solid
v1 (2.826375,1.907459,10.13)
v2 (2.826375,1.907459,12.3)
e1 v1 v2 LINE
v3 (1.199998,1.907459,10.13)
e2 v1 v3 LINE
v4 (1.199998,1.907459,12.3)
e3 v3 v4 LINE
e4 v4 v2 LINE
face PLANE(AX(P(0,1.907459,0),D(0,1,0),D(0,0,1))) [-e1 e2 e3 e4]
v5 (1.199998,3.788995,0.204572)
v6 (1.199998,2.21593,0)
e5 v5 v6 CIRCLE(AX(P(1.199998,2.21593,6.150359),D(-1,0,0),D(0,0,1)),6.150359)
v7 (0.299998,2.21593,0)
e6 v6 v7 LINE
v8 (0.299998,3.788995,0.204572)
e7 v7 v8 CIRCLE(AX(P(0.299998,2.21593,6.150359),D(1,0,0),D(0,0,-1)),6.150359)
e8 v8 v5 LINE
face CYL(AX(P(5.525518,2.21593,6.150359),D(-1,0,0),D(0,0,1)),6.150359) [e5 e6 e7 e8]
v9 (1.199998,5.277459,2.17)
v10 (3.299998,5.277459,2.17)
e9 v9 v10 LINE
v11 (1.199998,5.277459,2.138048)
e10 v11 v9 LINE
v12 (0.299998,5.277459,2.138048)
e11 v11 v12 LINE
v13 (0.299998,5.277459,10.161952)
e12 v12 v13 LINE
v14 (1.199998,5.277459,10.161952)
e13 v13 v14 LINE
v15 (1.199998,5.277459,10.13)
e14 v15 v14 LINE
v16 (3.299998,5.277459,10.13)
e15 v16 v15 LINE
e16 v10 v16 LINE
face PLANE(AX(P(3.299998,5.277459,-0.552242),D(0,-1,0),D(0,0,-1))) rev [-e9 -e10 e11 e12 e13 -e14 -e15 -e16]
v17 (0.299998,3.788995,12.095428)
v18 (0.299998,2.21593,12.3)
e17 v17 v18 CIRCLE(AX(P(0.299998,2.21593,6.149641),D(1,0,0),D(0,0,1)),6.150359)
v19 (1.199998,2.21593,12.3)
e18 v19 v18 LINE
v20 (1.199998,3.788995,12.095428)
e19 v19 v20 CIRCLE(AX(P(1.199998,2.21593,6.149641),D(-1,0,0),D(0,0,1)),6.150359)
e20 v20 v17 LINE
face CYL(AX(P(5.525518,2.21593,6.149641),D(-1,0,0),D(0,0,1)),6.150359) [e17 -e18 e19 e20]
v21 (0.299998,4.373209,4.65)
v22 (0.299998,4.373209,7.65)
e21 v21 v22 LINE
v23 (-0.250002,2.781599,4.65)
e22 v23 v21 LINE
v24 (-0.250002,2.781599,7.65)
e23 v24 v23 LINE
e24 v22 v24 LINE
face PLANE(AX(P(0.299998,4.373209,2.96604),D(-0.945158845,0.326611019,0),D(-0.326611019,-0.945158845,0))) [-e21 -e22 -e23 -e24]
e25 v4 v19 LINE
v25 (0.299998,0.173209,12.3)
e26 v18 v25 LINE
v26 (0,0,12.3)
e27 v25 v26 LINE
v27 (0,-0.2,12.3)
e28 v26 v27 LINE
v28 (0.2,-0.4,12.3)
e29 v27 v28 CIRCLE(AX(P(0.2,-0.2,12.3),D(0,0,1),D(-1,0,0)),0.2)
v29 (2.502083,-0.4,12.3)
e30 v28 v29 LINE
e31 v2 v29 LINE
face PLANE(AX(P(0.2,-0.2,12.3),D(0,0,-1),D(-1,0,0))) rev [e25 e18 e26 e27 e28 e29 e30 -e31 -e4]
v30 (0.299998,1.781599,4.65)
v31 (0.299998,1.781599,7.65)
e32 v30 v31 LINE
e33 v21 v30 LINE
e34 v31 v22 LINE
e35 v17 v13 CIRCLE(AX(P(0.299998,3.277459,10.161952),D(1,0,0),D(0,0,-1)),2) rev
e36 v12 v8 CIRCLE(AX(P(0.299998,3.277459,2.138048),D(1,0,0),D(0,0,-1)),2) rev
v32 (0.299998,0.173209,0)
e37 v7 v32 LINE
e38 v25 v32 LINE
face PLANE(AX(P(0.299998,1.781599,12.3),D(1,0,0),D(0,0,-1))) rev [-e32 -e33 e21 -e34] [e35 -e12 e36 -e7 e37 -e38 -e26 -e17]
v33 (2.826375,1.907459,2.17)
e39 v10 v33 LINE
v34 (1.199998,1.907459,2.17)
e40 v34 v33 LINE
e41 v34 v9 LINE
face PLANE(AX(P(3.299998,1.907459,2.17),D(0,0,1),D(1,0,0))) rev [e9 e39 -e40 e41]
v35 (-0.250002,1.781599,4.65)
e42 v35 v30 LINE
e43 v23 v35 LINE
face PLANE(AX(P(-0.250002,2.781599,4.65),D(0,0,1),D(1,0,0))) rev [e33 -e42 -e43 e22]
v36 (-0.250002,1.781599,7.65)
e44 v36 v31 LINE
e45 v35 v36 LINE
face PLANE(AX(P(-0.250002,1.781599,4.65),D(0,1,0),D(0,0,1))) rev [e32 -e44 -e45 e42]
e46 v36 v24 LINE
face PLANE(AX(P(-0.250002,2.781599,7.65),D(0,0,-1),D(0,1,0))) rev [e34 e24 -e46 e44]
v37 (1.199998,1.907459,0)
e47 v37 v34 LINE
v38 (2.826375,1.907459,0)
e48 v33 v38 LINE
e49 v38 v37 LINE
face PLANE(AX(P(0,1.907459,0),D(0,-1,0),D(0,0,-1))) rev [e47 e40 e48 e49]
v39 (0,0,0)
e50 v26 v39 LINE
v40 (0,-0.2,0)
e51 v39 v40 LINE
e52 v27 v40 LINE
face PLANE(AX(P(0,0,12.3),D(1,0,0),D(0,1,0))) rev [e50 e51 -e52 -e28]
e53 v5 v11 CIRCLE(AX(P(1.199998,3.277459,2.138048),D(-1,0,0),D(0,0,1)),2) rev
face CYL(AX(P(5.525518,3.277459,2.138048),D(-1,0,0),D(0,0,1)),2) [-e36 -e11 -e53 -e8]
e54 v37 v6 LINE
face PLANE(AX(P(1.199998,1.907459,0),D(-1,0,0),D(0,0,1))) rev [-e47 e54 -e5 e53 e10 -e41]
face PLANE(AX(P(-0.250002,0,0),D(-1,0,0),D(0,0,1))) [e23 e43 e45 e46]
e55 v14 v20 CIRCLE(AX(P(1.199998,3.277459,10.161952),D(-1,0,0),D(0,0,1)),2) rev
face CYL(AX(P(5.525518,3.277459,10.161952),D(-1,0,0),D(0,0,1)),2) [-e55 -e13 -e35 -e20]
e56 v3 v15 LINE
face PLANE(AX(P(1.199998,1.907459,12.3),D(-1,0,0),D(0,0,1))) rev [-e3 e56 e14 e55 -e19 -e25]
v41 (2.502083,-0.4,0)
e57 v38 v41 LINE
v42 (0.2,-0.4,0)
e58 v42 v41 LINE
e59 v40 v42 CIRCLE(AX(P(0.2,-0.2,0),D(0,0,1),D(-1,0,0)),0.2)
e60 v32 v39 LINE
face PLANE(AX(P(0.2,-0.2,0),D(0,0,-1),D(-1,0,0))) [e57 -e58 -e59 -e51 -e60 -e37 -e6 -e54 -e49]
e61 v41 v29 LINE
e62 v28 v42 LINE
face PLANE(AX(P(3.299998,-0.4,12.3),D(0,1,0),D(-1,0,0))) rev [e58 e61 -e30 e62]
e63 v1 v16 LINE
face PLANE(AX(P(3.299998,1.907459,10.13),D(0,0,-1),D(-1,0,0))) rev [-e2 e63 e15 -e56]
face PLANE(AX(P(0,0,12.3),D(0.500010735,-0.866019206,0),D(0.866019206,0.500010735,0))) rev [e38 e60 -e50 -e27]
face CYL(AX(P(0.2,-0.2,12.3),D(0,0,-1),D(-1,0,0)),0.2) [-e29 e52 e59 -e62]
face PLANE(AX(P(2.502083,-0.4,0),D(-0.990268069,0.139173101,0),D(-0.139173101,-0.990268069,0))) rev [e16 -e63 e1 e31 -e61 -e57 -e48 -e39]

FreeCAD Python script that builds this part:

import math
import FreeCAD as App
import Part
import Sketcher

V = App.Vector
Q = App.Units.Quantity


def edges_at(feature, points):
    """Names of the edges that pass closest to the given points."""
    edges = feature.Shape.Edges
    near = lambda p: min(range(len(edges)), key=lambda i: edges[i].distToShape(Part.Vertex(*p))[0])
    return sorted({f"Edge{near(p) + 1}" for p in points})

doc = App.newDocument("Part")
body = doc.addObject("PartDesign::Body", "Body")

# Sketch on XY plane
sketch1 = body.newObject("Sketcher::SketchObject", "Sketch")
sketch1.AttachmentSupport = (doc.getObject("XY_Plane"), [""])
sketch1.MapMode = "FlatFace"
sketch1.addGeometry(Part.LineSegment(V(0.3, 0.17, 0), V(0, 0, 0)), False)
sketch1.addGeometry(Part.LineSegment(V(0, 0, 0), V(0, -0.2, 0)), False)
sketch1.addGeometry(Part.ArcOfCircle(Part.Circle(V(0.2, -0.2, 0), V(0, 0, 1), 0.2), math.radians(-180), math.radians(-90)), False)
sketch1.addGeometry(Part.LineSegment(V(0.2, -0.4, 0), V(3.3, -0.4, 0)), False)
sketch1.addGeometry(Part.LineSegment(V(3.3, -0.4, 0), V(3.3, 6.11, 0)), False)
sketch1.addGeometry(Part.LineSegment(V(3.3, 6.11, 0), V(0.3, 6.11, 0)), False)
sketch1.addGeometry(Part.LineSegment(V(0.3, 6.11, 0), V(0.3, 0.17, 0)), False)
sketch1.addConstraint(Sketcher.Constraint("Coincident", 0, 2, 1, 1))
sketch1.addConstraint(Sketcher.Constraint("Tangent", 1, 2, 2, 1))
sketch1.addConstraint(Sketcher.Constraint("Tangent", 2, 2, 3, 1))
sketch1.addConstraint(Sketcher.Constraint("Coincident", 3, 2, 4, 1))
sketch1.addConstraint(Sketcher.Constraint("Coincident", 4, 2, 5, 1))
sketch1.addConstraint(Sketcher.Constraint("Coincident", 5, 2, 6, 1))
sketch1.addConstraint(Sketcher.Constraint("Coincident", 6, 2, 0, 1))
sketch1.addConstraint(Sketcher.Constraint("Vertical", 1))
sketch1.addConstraint(Sketcher.Constraint("Horizontal", 3))
sketch1.addConstraint(Sketcher.Constraint("Vertical", 4))
sketch1.addConstraint(Sketcher.Constraint("Horizontal", 5))
sketch1.addConstraint(Sketcher.Constraint("Vertical", 6))
sketch1.addConstraint(Sketcher.Constraint("Coincident", 0, 2, -1, 1))
sketch1.addConstraint(Sketcher.Constraint("Radius", 2, 0.2))
sketch1.addConstraint(Sketcher.Constraint("DistanceX", 5, 2, 5, 1, 3.0))
sketch1.addConstraint(Sketcher.Constraint("DistanceY", 1, 2, 1, 1, 0.2))
sketch1.addConstraint(Sketcher.Constraint("DistanceY", 4, 1, 4, 2, 6.507459))
sketch1.addConstraint(Sketcher.Constraint("DistanceY", 6, 2, 6, 1, 5.93425))
sketch1.addConstraint(Sketcher.Constraint("Distance", 0, 0.34641))
pad1 = body.newObject("PartDesign::Pad", "Pad")
pad1.Profile = sketch1
pad1.Length = 12.3

# Sketch on XZ plane
sketch2 = body.newObject("Sketcher::SketchObject", "Sketch001")
sketch2.AttachmentSupport = (doc.getObject("XZ_Plane"), [""])
sketch2.MapMode = "FlatFace"
sketch2.AttachmentOffset = App.Placement(V(0, 0, -6.107459), App.Rotation())
sketch2.addGeometry(Part.LineSegment(V(1.2, 0, 0), V(1.2, 2.2, 0)), False)
sketch2.addGeometry(Part.LineSegment(V(1.2, 2.2, 0), V(3.3, 2.2, 0)), False)
sketch2.addGeometry(Part.LineSegment(V(3.3, 2.2, 0), V(3.3, 0, 0)), False)
sketch2.addGeometry(Part.LineSegment(V(3.3, 0, 0), V(1.2, 0, 0)), False)
sketch2.addGeometry(Part.LineSegment(V(1.2, 10.1, 0), V(1.2, 12.3, 0)), False)
sketch2.addGeometry(Part.LineSegment(V(1.2, 12.3, 0), V(3.3, 12.3, 0)), False)
sketch2.addGeometry(Part.LineSegment(V(3.3, 12.3, 0), V(3.3, 10.1, 0)), False)
sketch2.addGeometry(Part.LineSegment(V(3.3, 10.1, 0), V(1.2, 10.1, 0)), False)
sketch2.addConstraint(Sketcher.Constraint("Coincident", 0, 2, 1, 1))
sketch2.addConstraint(Sketcher.Constraint("Coincident", 1, 2, 2, 1))
sketch2.addConstraint(Sketcher.Constraint("Coincident", 2, 2, 3, 1))
sketch2.addConstraint(Sketcher.Constraint("Coincident", 3, 2, 0, 1))
sketch2.addConstraint(Sketcher.Constraint("Coincident", 4, 2, 5, 1))
sketch2.addConstraint(Sketcher.Constraint("Coincident", 5, 2, 6, 1))
sketch2.addConstraint(Sketcher.Constraint("Coincident", 6, 2, 7, 1))
sketch2.addConstraint(Sketcher.Constraint("Coincident", 7, 2, 4, 1))
sketch2.addConstraint(Sketcher.Constraint("Vertical", 0))
sketch2.addConstraint(Sketcher.Constraint("Horizontal", 1))
sketch2.addConstraint(Sketcher.Constraint("Vertical", 2))
sketch2.addConstraint(Sketcher.Constraint("Horizontal", 3))
sketch2.addConstraint(Sketcher.Constraint("Vertical", 4))
sketch2.addConstraint(Sketcher.Constraint("Horizontal", 5))
sketch2.addConstraint(Sketcher.Constraint("Vertical", 6))
sketch2.addConstraint(Sketcher.Constraint("Horizontal", 7))
sketch2.addConstraint(Sketcher.Constraint("PointOnObject", 2, 2, -1))
sketch2.addConstraint(Sketcher.Constraint("Vertical", 3, 2, 4, 2))
sketch2.addConstraint(Sketcher.Constraint("Vertical", 2, 2, 5, 2))
sketch2.addConstraint(Sketcher.Constraint("Equal", 2, 4))
sketch2.addConstraint(Sketcher.Constraint("DistanceX", 1, 1, 1, 2, 2.1))
sketch2.addConstraint(Sketcher.Constraint("DistanceY", 0, 1, 0, 2, 2.17))
sketch2.addConstraint(Sketcher.Constraint("DistanceY", -1, 1, 4, 2, 12.3))
sketch2.addConstraint(Sketcher.Constraint("DistanceX", -1, 1, 0, 2, 1.199998))
pocket1 = body.newObject("PartDesign::Pocket", "Pocket")
pocket1.Profile = sketch2
pocket1.Length = 4.2
pocket1.Reversed = True

# Sketch on YZ plane
sketch3 = body.newObject("Sketcher::SketchObject", "Sketch002")
sketch3.AttachmentSupport = (doc.getObject("YZ_Plane"), [""])
sketch3.MapMode = "FlatFace"
sketch3.AttachmentOffset = App.Placement(V(0, 0, 0.299998), App.Rotation())
sketch3.addGeometry(Part.LineSegment(V(6.1, 12.3, 0), V(6.1, 10.4, 0)), False)
sketch3.addGeometry(Part.ArcOfCircle(Part.Circle(V(5.1, 10.4, 0), V(0, 0, 1), 1), math.radians(0), math.radians(56)), False)
sketch3.addGeometry(Part.ArcOfCircle(Part.Circle(V(2.2, 6.1, 0), V(0, 0, 1), 6.2), math.radians(56), math.radians(90)), False)
sketch3.addGeometry(Part.LineSegment(V(2.2, 12.3, 0), V(6.1, 12.3, 0)), False)
sketch3.addGeometry(Part.LineSegment(V(6.1, 1.9, 0), V(6.1, 0, 0)), False)
sketch3.addGeometry(Part.LineSegment(V(6.1, 0, 0), V(2.2, 0, 0)), False)
sketch3.addGeometry(Part.ArcOfCircle(Part.Circle(V(2.2, 6.2, 0), V(0, 0, 1), 6.2), math.radians(-90), math.radians(-56)), False)
sketch3.addGeometry(Part.ArcOfCircle(Part.Circle(V(5.1, 1.9, 0), V(0, 0, 1), 1), math.radians(-56), math.radians(0)), False)
sketch3.addConstraint(Sketcher.Constraint("Coincident", 0, 2, 1, 1))
sketch3.addConstraint(Sketcher.Constraint("Tangent", 1, 2, 2, 1))
sketch3.addConstraint(Sketcher.Constraint("Tangent", 2, 2, 3, 1))
sketch3.addConstraint(Sketcher.Constraint("Coincident", 3, 2, 0, 1))
sketch3.addConstraint(Sketcher.Constraint("Coincident", 4, 2, 5, 1))
sketch3.addConstraint(Sketcher.Constraint("Tangent", 5, 2, 6, 1))
sketch3.addConstraint(Sketcher.Constraint("Tangent", 6, 2, 7, 1))
sketch3.addConstraint(Sketcher.Constraint("Coincident", 7, 2, 4, 1))
sketch3.addConstraint(Sketcher.Constraint("Vertical", 0))
sketch3.addConstraint(Sketcher.Constraint("Horizontal", 3))
sketch3.addConstraint(Sketcher.Constraint("Vertical", 4))
sketch3.addConstraint(Sketcher.Constraint("Horizontal", 5))
sketch3.addConstraint(Sketcher.Constraint("Equal", 2, 6))
sketch3.addConstraint(Sketcher.Constraint("Equal", 1, 7))
sketch3.addConstraint(Sketcher.Constraint("PointOnObject", 4, 2, -1))
sketch3.addConstraint(Sketcher.Constraint("Vertical", 2, 3, 6, 3))
sketch3.addConstraint(Sketcher.Constraint("Vertical", 1, 3, 7, 3))
sketch3.addConstraint(Sketcher.Constraint("Equal", 0, 4))
sketch3.addConstraint(Sketcher.Constraint("DistanceY", -1, 1, 2, 2, 12.3))
sketch3.addConstraint(Sketcher.Constraint("Radius", 1, 0.999691))
sketch3.addConstraint(Sketcher.Constraint("Radius", 2, 6.150359))
sketch3.addConstraint(Sketcher.Constraint("DistanceX", 3, 1, 3, 2, 3.891529))
sketch3.addConstraint(Sketcher.Constraint("DistanceY", 0, 2, 0, 1, 1.88842))
sketch3.addConstraint(Sketcher.Constraint("DistanceX", -1, 1, 2, 3, 2.21593))
pocket2 = body.newObject("PartDesign::Pocket", "Pocket001")
pocket2.Profile = sketch3
pocket2.Length = 0.9
pocket2.Reversed = True

# Sketch on YZ plane
sketch4 = body.newObject("Sketcher::SketchObject", "Sketch003")
sketch4.AttachmentSupport = (doc.getObject("YZ_Plane"), [""])
sketch4.MapMode = "FlatFace"
sketch4.AttachmentOffset = App.Placement(V(0, 0, 0.299998), App.Rotation())
sketch4.addGeometry(Part.LineSegment(V(2.8, 4.7, 0), V(1.8, 4.7, 0)), False)
sketch4.addGeometry(Part.LineSegment(V(1.8, 4.7, 0), V(1.8, 7.7, 0)), False)
sketch4.addGeometry(Part.LineSegment(V(1.8, 7.7, 0), V(2.8, 7.7, 0)), False)
sketch4.addGeometry(Part.LineSegment(V(2.8, 7.7, 0), V(2.8, 4.7, 0)), False)
sketch4.addConstraint(Sketcher.Constraint("Coincident", 0, 2, 1, 1))
sketch4.addConstraint(Sketcher.Constraint("Coincident", 1, 2, 2, 1))
sketch4.addConstraint(Sketcher.Constraint("Coincident", 2, 2, 3, 1))
sketch4.addConstraint(Sketcher.Constraint("Coincident", 3, 2, 0, 1))
sketch4.addConstraint(Sketcher.Constraint("Horizontal", 0))
sketch4.addConstraint(Sketcher.Constraint("Vertical", 1))
sketch4.addConstraint(Sketcher.Constraint("Horizontal", 2))
sketch4.addConstraint(Sketcher.Constraint("Vertical", 3))
sketch4.addConstraint(Sketcher.Constraint("DistanceX", 0, 2, 0, 1, 1.0))
sketch4.addConstraint(Sketcher.Constraint("DistanceY", 1, 1, 1, 2, 3.0))
sketch4.addConstraint(Sketcher.Constraint("DistanceY", -1, 1, 0, 2, 4.65))
sketch4.addConstraint(Sketcher.Constraint("DistanceX", -1, 1, 0, 2, 1.781599))
pad2 = body.newObject("PartDesign::Pad", "Pad001")
pad2.Profile = sketch4
pad2.Length = 0.55
pad2.Reversed = True

# Sketch on XY plane
sketch5 = body.newObject("Sketcher::SketchObject", "Sketch004")
sketch5.AttachmentSupport = (doc.getObject("XY_Plane"), [""])
sketch5.MapMode = "FlatFace"
sketch5.AttachmentOffset = App.Placement(V(0, 0, 7.65), App.Rotation())
sketch5.addGeometry(Part.LineSegment(V(0.3, 2.8, 0), V(0.3, 4.4, 0)), False)
sketch5.addGeometry(Part.LineSegment(V(0.3, 4.4, 0), V(-0.3, 2.8, 0)), False)
sketch5.addGeometry(Part.LineSegment(V(-0.3, 2.8, 0), V(0.3, 2.8, 0)), False)
sketch5.addConstraint(Sketcher.Constraint("Coincident", 0, 2, 1, 1))
sketch5.addConstraint(Sketcher.Constraint("Coincident", 1, 2, 2, 1))
sketch5.addConstraint(Sketcher.Constraint("Coincident", 2, 2, 0, 1))
sketch5.addConstraint(Sketcher.Constraint("Vertical", 0))
sketch5.addConstraint(Sketcher.Constraint("Horizontal", 2))
sketch5.addConstraint(Sketcher.Constraint("DistanceX", 2, 1, 2, 2, 0.55))
sketch5.addConstraint(Sketcher.Constraint("DistanceY", 0, 1, 0, 2, 1.59161))
sketch5.addConstraint(Sketcher.Constraint("DistanceY", -1, 1, 1, 2, 2.781599))
sketch5.addConstraint(Sketcher.Constraint("DistanceX", -1, 1, 0, 2, 0.299998))
pad3 = body.newObject("PartDesign::Pad", "Pad002")
pad3.Profile = sketch5
pad3.Length = 3
pad3.Reversed = True

# Sketch on YZ plane
sketch6 = body.newObject("Sketcher::SketchObject", "Sketch005")
sketch6.AttachmentSupport = (doc.getObject("YZ_Plane"), [""])
sketch6.MapMode = "FlatFace"
sketch6.AttachmentOffset = App.Placement(V(0, 0, 0.299998), App.Rotation())
sketch6.addGeometry(Part.LineSegment(V(6.1, -0.6, 0), V(5.3, -0.6, 0)), False)
sketch6.addGeometry(Part.LineSegment(V(5.3, -0.6, 0), V(5.3, 12.5, 0)), False)
sketch6.addGeometry(Part.LineSegment(V(5.3, 12.5, 0), V(6.1, 12.5, 0)), False)
sketch6.addGeometry(Part.LineSegment(V(6.1, 12.5, 0), V(6.1, -0.6, 0)), False)
sketch6.addConstraint(Sketcher.Constraint("Coincident", 0, 2, 1, 1))
sketch6.addConstraint(Sketcher.Constraint("Coincident", 1, 2, 2, 1))
sketch6.addConstraint(Sketcher.Constraint("Coincident", 2, 2, 3, 1))
sketch6.addConstraint(Sketcher.Constraint("Coincident", 3, 2, 0, 1))
sketch6.addConstraint(Sketcher.Constraint("Horizontal", 0))
sketch6.addConstraint(Sketcher.Constraint("Vertical", 1))
sketch6.addConstraint(Sketcher.Constraint("Horizontal", 2))
sketch6.addConstraint(Sketcher.Constraint("Vertical", 3))
sketch6.addConstraint(Sketcher.Constraint("DistanceX", 0, 2, 0, 1, 0.83))
sketch6.addConstraint(Sketcher.Constraint("DistanceY", 1, 1, 1, 2, 13.013137))
sketch6.addConstraint(Sketcher.Constraint("DistanceX", -1, 1, 0, 2, 5.277459))
sketch6.addConstraint(Sketcher.Constraint("DistanceY", 0, 2, -1, 1, 0.552242))
pocket3 = body.newObject("PartDesign::Pocket", "Pocket002")
pocket3.Profile = sketch6
pocket3.Type = "ThroughAll"
pocket3.Reversed = True
doc.recompute()

fillet = body.newObject("PartDesign::Fillet", "Fillet")
fillet.Base = (pocket3, edges_at(pocket3, [(0.75, 5.277, 0.816), (0.75, 5.277, 11.484)]))
fillet.Radius = 2

# Sketch on XY plane
sketch7 = body.newObject("Sketcher::SketchObject", "Sketch006")
sketch7.AttachmentSupport = (doc.getObject("XY_Plane"), [""])
sketch7.MapMode = "FlatFace"
sketch7.AttachmentOffset = App.Placement(V(0, 0, 12.3), App.Rotation())
sketch7.addGeometry(Part.LineSegment(V(3.3, -0.4, 0), V(3.3, 5.3, 0)), False)
sketch7.addGeometry(Part.LineSegment(V(3.3, 5.3, 0), V(2.5, -0.4, 0)), False)
sketch7.addGeometry(Part.LineSegment(V(2.5, -0.4, 0), V(3.3, -0.4, 0)), False)
sketch7.addConstraint(Sketcher.Constraint("Coincident", 0, 2, 1, 1))
sketch7.addConstraint(Sketcher.Constraint("Coincident", 1, 2, 2, 1))
sketch7.addConstraint(Sketcher.Constraint("Coincident", 2, 2, 0, 1))
sketch7.addConstraint(Sketcher.Constraint("Vertical", 0))
sketch7.addConstraint(Sketcher.Constraint("Horizontal", 2))
sketch7.addConstraint(Sketcher.Constraint("Angle", 1, Q("-98 deg")))
sketch7.addConstraint(Sketcher.Constraint("DistanceY", 1, 2, -1, 1, 0.4))
sketch7.addConstraint(Sketcher.Constraint("DistanceY", 0, 1, 0, 2, 5.677459))
sketch7.addConstraint(Sketcher.Constraint("DistanceX", -1, 1, 0, 2, 3.299998))
pocket4 = body.newObject("PartDesign::Pocket", "Pocket003")
pocket4.Profile = sketch7
pocket4.Type = "ThroughAll"

doc.recompute()
